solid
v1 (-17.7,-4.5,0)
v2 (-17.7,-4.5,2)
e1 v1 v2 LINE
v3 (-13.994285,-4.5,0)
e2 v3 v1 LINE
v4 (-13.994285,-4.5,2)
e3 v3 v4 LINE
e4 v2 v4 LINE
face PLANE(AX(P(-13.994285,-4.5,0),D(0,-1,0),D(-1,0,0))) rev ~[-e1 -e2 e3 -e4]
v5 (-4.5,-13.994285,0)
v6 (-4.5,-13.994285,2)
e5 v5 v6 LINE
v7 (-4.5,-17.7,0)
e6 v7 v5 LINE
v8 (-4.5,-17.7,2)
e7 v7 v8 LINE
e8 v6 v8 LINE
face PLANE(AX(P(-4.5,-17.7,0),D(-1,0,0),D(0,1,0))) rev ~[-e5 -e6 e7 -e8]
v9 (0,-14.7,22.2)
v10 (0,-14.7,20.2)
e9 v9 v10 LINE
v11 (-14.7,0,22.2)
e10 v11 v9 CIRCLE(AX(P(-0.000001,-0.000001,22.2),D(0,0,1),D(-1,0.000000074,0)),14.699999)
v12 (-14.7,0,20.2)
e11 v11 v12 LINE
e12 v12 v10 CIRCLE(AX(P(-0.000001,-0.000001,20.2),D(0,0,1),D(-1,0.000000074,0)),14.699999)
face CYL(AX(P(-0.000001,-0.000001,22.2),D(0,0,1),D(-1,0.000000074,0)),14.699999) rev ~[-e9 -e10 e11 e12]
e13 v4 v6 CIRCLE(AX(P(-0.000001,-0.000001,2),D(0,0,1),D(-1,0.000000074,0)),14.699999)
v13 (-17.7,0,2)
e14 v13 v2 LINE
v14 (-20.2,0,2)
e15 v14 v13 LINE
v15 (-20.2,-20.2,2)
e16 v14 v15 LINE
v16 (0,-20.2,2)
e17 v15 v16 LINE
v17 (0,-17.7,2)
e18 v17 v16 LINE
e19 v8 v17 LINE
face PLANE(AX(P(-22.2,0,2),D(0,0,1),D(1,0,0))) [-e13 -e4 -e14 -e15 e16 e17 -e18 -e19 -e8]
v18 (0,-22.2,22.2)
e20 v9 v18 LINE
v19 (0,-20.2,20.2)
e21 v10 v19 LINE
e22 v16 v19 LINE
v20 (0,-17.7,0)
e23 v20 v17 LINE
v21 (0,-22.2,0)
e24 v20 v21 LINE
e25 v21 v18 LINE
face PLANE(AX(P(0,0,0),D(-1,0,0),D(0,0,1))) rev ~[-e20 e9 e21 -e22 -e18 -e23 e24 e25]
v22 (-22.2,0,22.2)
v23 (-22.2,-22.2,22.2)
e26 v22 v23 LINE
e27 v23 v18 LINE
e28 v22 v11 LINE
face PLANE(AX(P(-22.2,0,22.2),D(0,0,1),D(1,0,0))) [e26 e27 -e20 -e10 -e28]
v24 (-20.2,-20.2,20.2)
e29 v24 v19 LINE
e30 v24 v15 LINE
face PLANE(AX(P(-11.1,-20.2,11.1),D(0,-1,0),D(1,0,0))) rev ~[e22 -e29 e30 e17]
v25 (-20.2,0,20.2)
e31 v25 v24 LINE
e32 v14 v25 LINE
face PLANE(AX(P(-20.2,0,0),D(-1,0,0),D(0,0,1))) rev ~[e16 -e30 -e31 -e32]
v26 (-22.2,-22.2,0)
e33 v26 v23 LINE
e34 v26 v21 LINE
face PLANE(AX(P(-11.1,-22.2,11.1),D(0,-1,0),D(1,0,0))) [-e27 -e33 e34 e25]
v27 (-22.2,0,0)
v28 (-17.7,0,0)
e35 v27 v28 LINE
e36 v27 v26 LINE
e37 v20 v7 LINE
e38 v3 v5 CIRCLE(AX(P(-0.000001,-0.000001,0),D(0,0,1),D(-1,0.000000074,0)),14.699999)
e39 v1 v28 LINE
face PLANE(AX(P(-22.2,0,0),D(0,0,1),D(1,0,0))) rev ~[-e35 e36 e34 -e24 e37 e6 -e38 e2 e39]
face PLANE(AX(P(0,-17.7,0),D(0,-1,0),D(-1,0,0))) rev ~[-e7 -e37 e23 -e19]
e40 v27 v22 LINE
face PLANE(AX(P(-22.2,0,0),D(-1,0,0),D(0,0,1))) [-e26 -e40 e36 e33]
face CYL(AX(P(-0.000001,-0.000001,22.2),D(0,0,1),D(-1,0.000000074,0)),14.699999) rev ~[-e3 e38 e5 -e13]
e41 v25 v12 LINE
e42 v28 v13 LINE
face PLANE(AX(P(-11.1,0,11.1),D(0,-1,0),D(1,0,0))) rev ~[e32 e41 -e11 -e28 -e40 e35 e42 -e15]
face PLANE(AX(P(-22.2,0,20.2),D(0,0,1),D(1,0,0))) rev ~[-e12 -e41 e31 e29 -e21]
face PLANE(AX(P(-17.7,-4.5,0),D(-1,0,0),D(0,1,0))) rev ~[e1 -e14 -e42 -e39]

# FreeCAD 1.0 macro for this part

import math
import FreeCAD as App
import Part
import Sketcher

V = App.Vector
Q = App.Units.Quantity


def faces_at(feature, points):
    """Names of the faces that lie closest to the given points."""
    faces = feature.Shape.Faces
    near = lambda p: min(range(len(faces)), key=lambda i: faces[i].distToShape(Part.Vertex(*p))[0])
    return sorted({f"Face{near(p) + 1}" for p in points})


def add_polygon(sketch, points):
    """Adds a closed chain of lines whose ends are joined by coincident constraints."""
    first, n = sketch.GeometryCount, len(points)
    for a, b in zip(points, points[1:] + points[:1]):
        sketch.addGeometry(Part.LineSegment(App.Vector(*a, 0), App.Vector(*b, 0)), False)
    for i in range(n):
        sketch.addConstraint(Sketcher.Constraint("Coincident", first + i, 2, first + (i + 1) % n, 1))

doc = App.newDocument("Part")
body = doc.addObject("PartDesign::Body", "Body")

sketch1 = body.newObject("Sketcher::SketchObject", "Sketch")
sketch1.AttachmentSupport = (doc.getObject("XZ_Plane"), [""])
sketch1.MapMode = "FlatFace"
add_polygon(sketch1, [(-22.2, 22.2), (-22.2, 0), (0, 0), (0, 22.2)])
sketch1.addConstraint([
    Sketcher.Constraint("Vertical", 0),
    Sketcher.Constraint("Horizontal", 1),
    Sketcher.Constraint("Vertical", 2),
    Sketcher.Constraint("Horizontal", 3),
    Sketcher.Constraint("Coincident", 1, 2, -1, 1),
    Sketcher.Constraint("Equal", 3, 0),
    Sketcher.Constraint("DistanceX", 1, 1, 1, 2, Q("22.2 mm")),
])
pad1 = body.newObject("PartDesign::Pad", "Pad")
pad1.Profile = sketch1
pad1.Length = 22.2
doc.recompute()

thickness = body.newObject("PartDesign::Thickness", "Thickness")
thickness.Base = (pad1, faces_at(pad1, [(0, -11.1, 11.1), (-11.1, 0, 11.1)]))
thickness.Value = 2
thickness.Reversed = True
thickness.Join = "Arc"

sketch2 = body.newObject("Sketcher::SketchObject", "Sketch001")
sketch2.AttachmentSupport = (doc.getObject("XY_Plane"), [""])
sketch2.MapMode = "FlatFace"
sketch2.AttachmentOffset = App.Placement(V(0, 0, 22.2), App.Rotation())
sketch2.addGeometry([
    Part.LineSegment(V(0, 0, 0), V(-14.7, 0, 0)),
    Part.ArcOfCircle(Part.Circle(V(-0.000001, -0.000001, 0), V(0, 0, 1), 14.699999), math.radians(179.999996), math.radians(270.000004)),
    Part.LineSegment(V(0, -14.7, 0), V(0, 0, 0)),
], False)
sketch2.addConstraint([
    Sketcher.Constraint("Coincident", 0, 2, 1, 1),
    Sketcher.Constraint("Coincident", 1, 2, 2, 1),
    Sketcher.Constraint("Coincident", 2, 2, 0, 1),
    Sketcher.Constraint("Horizontal", 0),
    Sketcher.Constraint("Vertical", 2),
    Sketcher.Constraint("Coincident", 1, 3, -1, 1),
    Sketcher.Constraint("Coincident", 2, 2, -1, 1),
    Sketcher.Constraint("Radius", 1, Q("14.699999 mm")),
])
pocket1 = body.newObject("PartDesign::Pocket", "Pocket")
pocket1.Profile = sketch2
pocket1.Type = "ThroughAll"

sketch3 = body.newObject("Sketcher::SketchObject", "Sketch002")
sketch3.AttachmentSupport = (doc.getObject("XY_Plane"), [""])
sketch3.MapMode = "FlatFace"
sketch3.addGeometry([
    Part.LineSegment(V(-17.7, -4.5, 0), V(-17.7, 0, 0)),
    Part.LineSegment(V(-17.7, 0, 0), V(-14.7, 0, 0)),
    Part.ArcOfCircle(Part.Circle(V(0.000051, 0.000007, 0), V(0, 0, 1), 14.700051), math.radians(-179.999974), math.radians(-162.174331)),
    Part.LineSegment(V(-13.994285, -4.5, 0), V(-17.7, -4.5, 0)),
    Part.LineSegment(V(0, -14.7, 0), V(0, -17.7, 0)),
    Part.LineSegment(V(0, -17.7, 0), V(-4.5, -17.7, 0)),
    Part.LineSegment(V(-4.5, -17.7, 0), V(-4.5, -13.994285, 0)),
    Part.ArcOfCircle(Part.Circle(V(0.000007, 0.000051, 0), V(0, 0, 1), 14.700051), math.radians(-107.825669), math.radians(-90.000026)),
], False)
sketch3.addConstraint([
    Sketcher.Constraint("Coincident", 0, 2, 1, 1),
    Sketcher.Constraint("Coincident", 1, 2, 2, 1),
    Sketcher.Constraint("Coincident", 2, 2, 3, 1),
    Sketcher.Constraint("Coincident", 3, 2, 0, 1),
    Sketcher.Constraint("Coincident", 4, 2, 5, 1),
    Sketcher.Constraint("Coincident", 5, 2, 6, 1),
    Sketcher.Constraint("Coincident", 6, 2, 7, 1),
    Sketcher.Constraint("Coincident", 7, 2, 4, 1),
    Sketcher.Constraint("Vertical", 0),
    Sketcher.Constraint("Horizontal", 1),
    Sketcher.Constraint("Horizontal", 3),
    Sketcher.Constraint("Vertical", 4),
    Sketcher.Constraint("Horizontal", 5),
    Sketcher.Constraint("Vertical", 6),
    Sketcher.Constraint("Equal", 2, 7),
    Sketcher.Constraint("PointOnObject", 0, 2, -1),
    Sketcher.Constraint("PointOnObject", 4, 2, -2),
    Sketcher.Constraint("Equal", 5, 0),
    Sketcher.Constraint("Equal", 1, 4),
    Sketcher.Constraint("Equal", 3, 6),
    Sketcher.Constraint("DistanceX", 1, 1, 1, 2, Q("3 mm")),
    Sketcher.Constraint("DistanceX", 5, 2, 5, 1, Q("4.5 mm")),
    Sketcher.Constraint("DistanceX", 0, 2, -1, 1, Q("17.7 mm")),
    Sketcher.Constraint("DistanceY", 4, 2, -1, 1, Q("17.7 mm")),
    Sketcher.Constraint("Radius", 2, Q("14.700051 mm")),
    Sketcher.Constraint("DistanceX", 3, 2, 3, 1, Q("3.705715 mm")),
])
pocket2 = body.newObject("PartDesign::Pocket", "Pocket001")
pocket2.Profile = sketch3
pocket2.Length = 2.5
pocket2.Reversed = True

doc.recompute()
